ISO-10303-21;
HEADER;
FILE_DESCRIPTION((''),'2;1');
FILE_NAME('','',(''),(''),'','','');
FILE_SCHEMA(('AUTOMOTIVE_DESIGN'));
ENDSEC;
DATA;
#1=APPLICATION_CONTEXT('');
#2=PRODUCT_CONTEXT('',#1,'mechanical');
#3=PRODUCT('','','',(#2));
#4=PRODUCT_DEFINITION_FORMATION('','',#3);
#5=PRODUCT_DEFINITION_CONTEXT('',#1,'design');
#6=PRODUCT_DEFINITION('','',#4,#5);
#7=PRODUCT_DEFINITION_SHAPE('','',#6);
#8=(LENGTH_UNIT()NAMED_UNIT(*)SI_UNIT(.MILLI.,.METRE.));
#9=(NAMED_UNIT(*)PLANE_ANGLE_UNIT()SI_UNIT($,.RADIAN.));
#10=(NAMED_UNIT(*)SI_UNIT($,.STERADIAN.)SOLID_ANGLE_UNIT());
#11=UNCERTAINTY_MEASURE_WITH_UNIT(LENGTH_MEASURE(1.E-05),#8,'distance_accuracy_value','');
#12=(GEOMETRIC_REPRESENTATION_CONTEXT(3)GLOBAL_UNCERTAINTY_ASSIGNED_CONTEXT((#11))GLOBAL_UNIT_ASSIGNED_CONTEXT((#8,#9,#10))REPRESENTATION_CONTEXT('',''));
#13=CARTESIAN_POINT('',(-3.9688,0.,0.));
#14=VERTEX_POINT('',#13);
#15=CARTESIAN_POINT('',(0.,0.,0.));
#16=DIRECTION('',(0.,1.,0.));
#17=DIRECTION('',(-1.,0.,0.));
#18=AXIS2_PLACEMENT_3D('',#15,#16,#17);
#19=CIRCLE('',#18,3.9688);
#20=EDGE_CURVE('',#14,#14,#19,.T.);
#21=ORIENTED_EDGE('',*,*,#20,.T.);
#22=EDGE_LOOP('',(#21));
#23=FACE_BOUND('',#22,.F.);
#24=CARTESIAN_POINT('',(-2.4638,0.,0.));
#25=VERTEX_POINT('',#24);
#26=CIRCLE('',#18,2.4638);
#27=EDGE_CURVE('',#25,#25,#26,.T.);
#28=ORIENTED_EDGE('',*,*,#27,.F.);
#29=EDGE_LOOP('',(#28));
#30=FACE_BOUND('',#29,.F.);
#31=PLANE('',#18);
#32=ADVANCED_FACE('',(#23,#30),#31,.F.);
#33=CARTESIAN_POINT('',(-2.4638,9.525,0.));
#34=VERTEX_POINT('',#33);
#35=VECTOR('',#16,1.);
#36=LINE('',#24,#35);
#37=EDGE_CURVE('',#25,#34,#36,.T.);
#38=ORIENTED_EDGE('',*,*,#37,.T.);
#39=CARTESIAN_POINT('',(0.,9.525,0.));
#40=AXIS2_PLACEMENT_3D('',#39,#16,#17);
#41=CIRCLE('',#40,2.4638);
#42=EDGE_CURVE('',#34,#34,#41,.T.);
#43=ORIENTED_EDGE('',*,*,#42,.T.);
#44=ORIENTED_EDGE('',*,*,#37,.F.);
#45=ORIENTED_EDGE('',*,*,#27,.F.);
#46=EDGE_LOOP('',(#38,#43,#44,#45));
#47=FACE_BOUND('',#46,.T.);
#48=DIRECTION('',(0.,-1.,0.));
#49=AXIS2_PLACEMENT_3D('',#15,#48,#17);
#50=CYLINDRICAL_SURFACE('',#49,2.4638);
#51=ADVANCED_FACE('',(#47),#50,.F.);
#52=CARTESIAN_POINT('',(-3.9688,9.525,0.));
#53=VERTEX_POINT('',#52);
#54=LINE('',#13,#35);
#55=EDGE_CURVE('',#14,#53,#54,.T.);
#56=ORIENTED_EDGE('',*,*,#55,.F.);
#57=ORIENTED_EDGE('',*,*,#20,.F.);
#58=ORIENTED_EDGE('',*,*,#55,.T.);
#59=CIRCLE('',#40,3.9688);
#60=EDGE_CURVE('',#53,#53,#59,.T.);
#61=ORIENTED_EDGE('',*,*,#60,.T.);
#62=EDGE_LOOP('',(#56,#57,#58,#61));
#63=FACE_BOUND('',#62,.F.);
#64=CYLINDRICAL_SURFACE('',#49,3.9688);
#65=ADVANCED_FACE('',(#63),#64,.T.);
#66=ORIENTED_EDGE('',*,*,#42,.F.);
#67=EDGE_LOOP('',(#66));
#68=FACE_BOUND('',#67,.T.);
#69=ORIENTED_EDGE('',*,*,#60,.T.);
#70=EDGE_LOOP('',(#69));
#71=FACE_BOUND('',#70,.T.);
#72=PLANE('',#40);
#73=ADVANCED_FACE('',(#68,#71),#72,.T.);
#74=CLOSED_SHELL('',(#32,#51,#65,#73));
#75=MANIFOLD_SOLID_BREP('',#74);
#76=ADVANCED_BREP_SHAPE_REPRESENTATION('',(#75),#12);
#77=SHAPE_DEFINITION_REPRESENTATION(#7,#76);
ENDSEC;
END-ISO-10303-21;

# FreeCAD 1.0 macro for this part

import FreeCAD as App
import Part
import Sketcher
Q = App.Units.Quantity

doc = App.newDocument("Part")
body = doc.addObject("PartDesign::Body", "Body")

# Sketch on XZ plane
sketch1 = body.newObject("Sketcher::SketchObject", "Sketch")
sketch1.AttachmentSupport = (doc.getObject("XZ_Plane"), [""])
sketch1.MapMode = "FlatFace"
sketch1.addGeometry([
    Part.Circle(App.Vector(0, 0, 0), App.Vector(0, 0, 1), 4),
    Part.Circle(App.Vector(0, 0, 0), App.Vector(0, 0, 1), 2.5),
], False)
sketch1.addConstraint([
    Sketcher.Constraint("Coincident", 0, 3, -1, 1),
    Sketcher.Constraint("Coincident", 1, 3, -1, 1),
    Sketcher.Constraint("Diameter", 0, Q("0.3125 in")),
    Sketcher.Constraint("Diameter", 1, Q("0.194 in")),
])
pad1 = body.newObject("PartDesign::Pad", "Pad")
pad1.Profile = sketch1
pad1.Length = Q("0.375 in")
pad1.Reversed = True

doc.recompute()
